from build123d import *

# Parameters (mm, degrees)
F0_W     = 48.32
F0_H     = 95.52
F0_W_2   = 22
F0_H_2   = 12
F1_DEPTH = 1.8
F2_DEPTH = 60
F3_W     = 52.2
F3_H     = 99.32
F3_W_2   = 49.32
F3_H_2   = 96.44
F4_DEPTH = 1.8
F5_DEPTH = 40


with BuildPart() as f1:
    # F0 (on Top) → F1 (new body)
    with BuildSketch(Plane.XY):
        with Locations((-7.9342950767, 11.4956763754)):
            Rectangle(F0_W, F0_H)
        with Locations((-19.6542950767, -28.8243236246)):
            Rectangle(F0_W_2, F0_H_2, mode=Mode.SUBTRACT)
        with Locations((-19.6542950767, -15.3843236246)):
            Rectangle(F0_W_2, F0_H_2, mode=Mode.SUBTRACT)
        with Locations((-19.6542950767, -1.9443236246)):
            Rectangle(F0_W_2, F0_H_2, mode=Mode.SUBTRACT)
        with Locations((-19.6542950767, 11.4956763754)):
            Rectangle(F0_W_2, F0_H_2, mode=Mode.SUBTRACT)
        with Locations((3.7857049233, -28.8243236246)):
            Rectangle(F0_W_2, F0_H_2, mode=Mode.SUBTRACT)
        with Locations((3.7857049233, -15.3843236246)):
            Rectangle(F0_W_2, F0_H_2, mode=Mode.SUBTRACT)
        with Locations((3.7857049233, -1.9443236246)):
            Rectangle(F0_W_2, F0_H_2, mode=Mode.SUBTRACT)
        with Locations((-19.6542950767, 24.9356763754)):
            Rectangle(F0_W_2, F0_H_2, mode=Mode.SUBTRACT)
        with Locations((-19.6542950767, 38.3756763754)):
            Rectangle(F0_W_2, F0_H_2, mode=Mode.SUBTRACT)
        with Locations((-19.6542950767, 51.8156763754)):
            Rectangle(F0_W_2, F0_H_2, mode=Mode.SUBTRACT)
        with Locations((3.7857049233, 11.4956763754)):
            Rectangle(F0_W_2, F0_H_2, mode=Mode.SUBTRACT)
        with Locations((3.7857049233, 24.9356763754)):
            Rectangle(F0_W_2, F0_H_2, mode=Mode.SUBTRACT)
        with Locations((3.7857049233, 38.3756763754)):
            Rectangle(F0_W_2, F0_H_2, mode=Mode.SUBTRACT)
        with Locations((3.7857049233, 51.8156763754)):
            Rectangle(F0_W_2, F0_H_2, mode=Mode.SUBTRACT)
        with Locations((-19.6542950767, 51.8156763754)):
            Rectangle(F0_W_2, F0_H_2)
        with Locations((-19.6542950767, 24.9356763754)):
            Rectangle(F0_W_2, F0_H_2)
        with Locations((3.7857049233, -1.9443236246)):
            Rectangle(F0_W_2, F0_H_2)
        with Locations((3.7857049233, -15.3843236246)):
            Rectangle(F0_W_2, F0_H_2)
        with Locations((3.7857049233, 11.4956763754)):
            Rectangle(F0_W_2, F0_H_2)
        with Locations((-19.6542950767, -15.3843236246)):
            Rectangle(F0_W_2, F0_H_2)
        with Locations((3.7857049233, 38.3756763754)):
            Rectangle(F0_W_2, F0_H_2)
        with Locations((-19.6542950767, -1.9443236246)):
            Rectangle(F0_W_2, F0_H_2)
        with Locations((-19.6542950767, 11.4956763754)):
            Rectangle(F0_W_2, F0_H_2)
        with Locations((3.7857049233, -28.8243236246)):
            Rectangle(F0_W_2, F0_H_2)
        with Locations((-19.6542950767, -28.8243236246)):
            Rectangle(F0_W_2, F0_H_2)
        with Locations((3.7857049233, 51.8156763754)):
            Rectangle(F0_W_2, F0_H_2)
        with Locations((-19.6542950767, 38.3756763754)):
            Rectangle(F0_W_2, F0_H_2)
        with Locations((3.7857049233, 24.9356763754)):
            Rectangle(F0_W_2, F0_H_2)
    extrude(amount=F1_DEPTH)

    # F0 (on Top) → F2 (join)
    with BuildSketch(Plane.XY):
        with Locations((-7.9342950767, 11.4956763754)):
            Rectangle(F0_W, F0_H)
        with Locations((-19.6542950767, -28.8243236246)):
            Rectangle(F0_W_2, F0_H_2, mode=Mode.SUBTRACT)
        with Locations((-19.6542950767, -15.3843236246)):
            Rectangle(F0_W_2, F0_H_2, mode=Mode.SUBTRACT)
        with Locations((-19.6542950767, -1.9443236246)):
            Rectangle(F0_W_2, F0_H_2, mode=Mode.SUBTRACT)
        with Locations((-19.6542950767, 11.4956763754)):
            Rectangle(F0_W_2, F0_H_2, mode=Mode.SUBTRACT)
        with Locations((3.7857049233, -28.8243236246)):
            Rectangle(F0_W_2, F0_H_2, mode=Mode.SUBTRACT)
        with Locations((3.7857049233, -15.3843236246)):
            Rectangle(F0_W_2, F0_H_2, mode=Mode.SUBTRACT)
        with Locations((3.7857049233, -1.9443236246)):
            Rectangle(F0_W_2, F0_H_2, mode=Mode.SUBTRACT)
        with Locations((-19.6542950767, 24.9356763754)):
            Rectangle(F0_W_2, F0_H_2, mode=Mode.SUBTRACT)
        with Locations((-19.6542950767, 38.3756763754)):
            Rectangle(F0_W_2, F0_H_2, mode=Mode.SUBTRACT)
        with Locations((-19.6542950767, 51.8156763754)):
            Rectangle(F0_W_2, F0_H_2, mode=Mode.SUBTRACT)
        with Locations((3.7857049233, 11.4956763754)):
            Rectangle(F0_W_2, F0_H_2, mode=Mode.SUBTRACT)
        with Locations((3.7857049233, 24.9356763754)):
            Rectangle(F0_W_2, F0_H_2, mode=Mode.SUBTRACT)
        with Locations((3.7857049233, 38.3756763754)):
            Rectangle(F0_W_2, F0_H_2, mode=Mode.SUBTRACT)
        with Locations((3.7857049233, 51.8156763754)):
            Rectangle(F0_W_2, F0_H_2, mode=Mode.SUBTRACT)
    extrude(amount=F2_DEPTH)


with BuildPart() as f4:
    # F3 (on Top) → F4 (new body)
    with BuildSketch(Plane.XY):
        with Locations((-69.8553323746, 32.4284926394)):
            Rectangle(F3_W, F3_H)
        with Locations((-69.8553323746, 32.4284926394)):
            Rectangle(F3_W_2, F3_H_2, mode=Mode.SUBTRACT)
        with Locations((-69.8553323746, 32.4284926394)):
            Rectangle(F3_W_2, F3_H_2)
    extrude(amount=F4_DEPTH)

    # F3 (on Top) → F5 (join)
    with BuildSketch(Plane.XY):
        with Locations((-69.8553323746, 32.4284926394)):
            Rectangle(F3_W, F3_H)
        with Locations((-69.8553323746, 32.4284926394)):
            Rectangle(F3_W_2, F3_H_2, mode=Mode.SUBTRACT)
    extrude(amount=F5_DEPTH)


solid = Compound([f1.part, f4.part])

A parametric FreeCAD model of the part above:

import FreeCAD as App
import Part
import Sketcher
Q = App.Units.Quantity


def add_polygon(sketch, points):
    """Adds a closed chain of lines whose ends are joined by coincident constraints."""
    first, n = sketch.GeometryCount, len(points)
    for a, b in zip(points, points[1:] + points[:1]):
        sketch.addGeometry(Part.LineSegment(App.Vector(*a, 0), App.Vector(*b, 0)), False)
    for i in range(n):
        sketch.addConstraint(Sketcher.Constraint("Coincident", first + i, 2, first + (i + 1) % n, 1))

doc = App.newDocument("Part")
body = doc.addObject("PartDesign::Body", "Body")

# Sketch on XY plane
sketch1 = body.newObject("Sketcher::SketchObject", "Sketch")
sketch1.AttachmentSupport = (doc.getObject("XY_Plane"), [""])
sketch1.MapMode = "FlatFace"
add_polygon(sketch1, [(-32, 59), (-32, -36), (16, -36), (16, 59)])  # lines 0-3
sketch1.addConstraint(Sketcher.Constraint("Vertical", 0))
sketch1.addConstraint(Sketcher.Constraint("Horizontal", 1))
sketch1.addConstraint(Sketcher.Constraint("Vertical", 2))
sketch1.addConstraint(Sketcher.Constraint("Horizontal", 3))
sketch1.addConstraint(Sketcher.Constraint("DistanceX", 1, 1, 1, 2, Q("48.32 mm")))
sketch1.addConstraint(Sketcher.Constraint("DistanceY", 0, 2, 0, 1, Q("95.52 mm")))
sketch1.addConstraint(Sketcher.Constraint("DistanceX", 0, 2, -1, 1, Q("32.094295 mm")))
sketch1.addConstraint(Sketcher.Constraint("DistanceY", 0, 2, -1, 1, Q("36.264324 mm")))
pad1 = body.newObject("PartDesign::Pad", "Pad")
pad1.Profile = sketch1
pad1.Length = 1.8

# Sketch on XY plane
sketch2 = body.newObject("Sketcher::SketchObject", "Sketch001")
sketch2.AttachmentSupport = (doc.getObject("XY_Plane"), [""])
sketch2.MapMode = "FlatFace"
add_polygon(sketch2, [(-32, 59), (-32, -36), (16, -36), (16, 59)])  # lines 0-3
add_polygon(sketch2, [(-9, -35), (-31, -35), (-31, -23), (-9, -23)])  # lines 4-7
add_polygon(sketch2, [(-9, -21), (-31, -21), (-31, -9), (-9, -9)])  # lines 8-11
add_polygon(sketch2, [(-9, -8), (-31, -8), (-31, 4), (-9, 4)])  # lines 12-15
add_polygon(sketch2, [(15, -35), (-7, -35), (-7, -23), (15, -23)])  # lines 16-19
add_polygon(sketch2, [(15, -21), (-7, -21), (-7, -9), (15, -9)])  # lines 20-23
add_polygon(sketch2, [(15, -8), (-7, -8), (-7, 4), (15, 4)])  # lines 24-27
add_polygon(sketch2, [(-9, 5), (-31, 5), (-31, 17), (-9, 17)])  # lines 28-31
add_polygon(sketch2, [(-9, 19), (-31, 19), (-31, 31), (-9, 31)])  # lines 32-35
add_polygon(sketch2, [(-9, 32), (-31, 32), (-31, 44), (-9, 44)])  # lines 36-39
add_polygon(sketch2, [(-9, 46), (-31, 46), (-31, 58), (-9, 58)])  # lines 40-43
add_polygon(sketch2, [(15, 5), (-7, 5), (-7, 17), (15, 17)])  # lines 44-47
add_polygon(sketch2, [(15, 19), (-7, 19), (-7, 31), (15, 31)])  # lines 48-51
add_polygon(sketch2, [(15, 32), (-7, 32), (-7, 44), (15, 44)])  # lines 52-55
add_polygon(sketch2, [(15, 46), (-7, 46), (-7, 58), (15, 58)])  # lines 56-59
sketch2.addConstraint(Sketcher.Constraint("Vertical", 0))
sketch2.addConstraint(Sketcher.Constraint("Horizontal", 1))
sketch2.addConstraint(Sketcher.Constraint("Vertical", 2))
sketch2.addConstraint(Sketcher.Constraint("Horizontal", 3))
sketch2.addConstraint(Sketcher.Constraint("Horizontal", 4))
sketch2.addConstraint(Sketcher.Constraint("Vertical", 5))
sketch2.addConstraint(Sketcher.Constraint("Horizontal", 6))
sketch2.addConstraint(Sketcher.Constraint("Vertical", 7))
sketch2.addConstraint(Sketcher.Constraint("Horizontal", 8))
sketch2.addConstraint(Sketcher.Constraint("Vertical", 9))
sketch2.addConstraint(Sketcher.Constraint("Horizontal", 10))
sketch2.addConstraint(Sketcher.Constraint("Vertical", 11))
sketch2.addConstraint(Sketcher.Constraint("Horizontal", 12))
sketch2.addConstraint(Sketcher.Constraint("Vertical", 13))
sketch2.addConstraint(Sketcher.Constraint("Horizontal", 14))
sketch2.addConstraint(Sketcher.Constraint("Vertical", 15))
sketch2.addConstraint(Sketcher.Constraint("Horizontal", 16))
sketch2.addConstraint(Sketcher.Constraint("Vertical", 17))
sketch2.addConstraint(Sketcher.Constraint("Horizontal", 18))
sketch2.addConstraint(Sketcher.Constraint("Vertical", 19))
sketch2.addConstraint(Sketcher.Constraint("Horizontal", 20))
sketch2.addConstraint(Sketcher.Constraint("Vertical", 21))
sketch2.addConstraint(Sketcher.Constraint("Horizontal", 22))
sketch2.addConstraint(Sketcher.Constraint("Vertical", 23))
sketch2.addConstraint(Sketcher.Constraint("Horizontal", 24))
sketch2.addConstraint(Sketcher.Constraint("Vertical", 25))
sketch2.addConstraint(Sketcher.Constraint("Horizontal", 26))
sketch2.addConstraint(Sketcher.Constraint("Vertical", 27))
sketch2.addConstraint(Sketcher.Constraint("Horizontal", 28))
sketch2.addConstraint(Sketcher.Constraint("Vertical", 29))
sketch2.addConstraint(Sketcher.Constraint("Horizontal", 30))
sketch2.addConstraint(Sketcher.Constraint("Vertical", 31))
sketch2.addConstraint(Sketcher.Constraint("Horizontal", 32))
sketch2.addConstraint(Sketcher.Constraint("Vertical", 33))
sketch2.addConstraint(Sketcher.Constraint("Horizontal", 34))
sketch2.addConstraint(Sketcher.Constraint("Vertical", 35))
sketch2.addConstraint(Sketcher.Constraint("Horizontal", 36))
sketch2.addConstraint(Sketcher.Constraint("Vertical", 37))
sketch2.addConstraint(Sketcher.Constraint("Horizontal", 38))
sketch2.addConstraint(Sketcher.Constraint("Vertical", 39))
sketch2.addConstraint(Sketcher.Constraint("Horizontal", 40))
sketch2.addConstraint(Sketcher.Constraint("Vertical", 41))
sketch2.addConstraint(Sketcher.Constraint("Horizontal", 42))
sketch2.addConstraint(Sketcher.Constraint("Vertical", 43))
sketch2.addConstraint(Sketcher.Constraint("Horizontal", 44))
sketch2.addConstraint(Sketcher.Constraint("Vertical", 45))
sketch2.addConstraint(Sketcher.Constraint("Horizontal", 46))
sketch2.addConstraint(Sketcher.Constraint("Vertical", 47))
sketch2.addConstraint(Sketcher.Constraint("Horizontal", 48))
sketch2.addConstraint(Sketcher.Constraint("Vertical", 49))
sketch2.addConstraint(Sketcher.Constraint("Horizontal", 50))
sketch2.addConstraint(Sketcher.Constraint("Vertical", 51))
sketch2.addConstraint(Sketcher.Constraint("Horizontal", 52))
sketch2.addConstraint(Sketcher.Constraint("Vertical", 53))
sketch2.addConstraint(Sketcher.Constraint("Horizontal", 54))
sketch2.addConstraint(Sketcher.Constraint("Vertical", 55))
sketch2.addConstraint(Sketcher.Constraint("Horizontal", 56))
sketch2.addConstraint(Sketcher.Constraint("Vertical", 57))
sketch2.addConstraint(Sketcher.Constraint("Horizontal", 58))
sketch2.addConstraint(Sketcher.Constraint("Vertical", 59))
sketch2.addConstraint(Sketcher.Constraint("Horizontal", 7, 2, 16, 2))
sketch2.addConstraint(Sketcher.Constraint("Horizontal", 6, 2, 17, 2))
sketch2.addConstraint(Sketcher.Constraint("Horizontal", 11, 2, 20, 2))
sketch2.addConstraint(Sketcher.Constraint("Horizontal", 10, 2, 21, 2))
sketch2.addConstraint(Sketcher.Constraint("Horizontal", 15, 2, 24, 2))
sketch2.addConstraint(Sketcher.Constraint("Horizontal", 14, 2, 25, 2))
sketch2.addConstraint(Sketcher.Constraint("Horizontal", 31, 2, 44, 2))
sketch2.addConstraint(Sketcher.Constraint("Horizontal", 30, 2, 45, 2))
sketch2.addConstraint(Sketcher.Constraint("Horizontal", 35, 2, 48, 2))
sketch2.addConstraint(Sketcher.Constraint("Horizontal", 34, 2, 49, 2))
sketch2.addConstraint(Sketcher.Constraint("Horizontal", 39, 2, 52, 2))
sketch2.addConstraint(Sketcher.Constraint("Horizontal", 38, 2, 53, 2))
sketch2.addConstraint(Sketcher.Constraint("Horizontal", 43, 2, 56, 2))
sketch2.addConstraint(Sketcher.Constraint("Horizontal", 42, 2, 57, 2))
sketch2.addConstraint(Sketcher.Constraint("Vertical", 5, 2, 8, 2))
sketch2.addConstraint(Sketcher.Constraint("Vertical", 7, 2, 10, 2))
sketch2.addConstraint(Sketcher.Constraint("Vertical", 9, 2, 12, 2))
sketch2.addConstraint(Sketcher.Constraint("Vertical", 11, 2, 14, 2))
sketch2.addConstraint(Sketcher.Constraint("Vertical", 17, 2, 20, 2))
sketch2.addConstraint(Sketcher.Constraint("Vertical", 19, 2, 22, 2))
sketch2.addConstraint(Sketcher.Constraint("Vertical", 21, 2, 24, 2))
sketch2.addConstraint(Sketcher.Constraint("Vertical", 23, 2, 26, 2))
sketch2.addConstraint(Sketcher.Constraint("Vertical", 13, 2, 28, 2))
sketch2.addConstraint(Sketcher.Constraint("Vertical", 15, 2, 30, 2))
sketch2.addConstraint(Sketcher.Constraint("Vertical", 29, 2, 32, 2))
sketch2.addConstraint(Sketcher.Constraint("Vertical", 31, 2, 34, 2))
sketch2.addConstraint(Sketcher.Constraint("Vertical", 33, 2, 36, 2))
sketch2.addConstraint(Sketcher.Constraint("Vertical", 35, 2, 38, 2))
sketch2.addConstraint(Sketcher.Constraint("Vertical", 37, 2, 40, 2))
sketch2.addConstraint(Sketcher.Constraint("Vertical", 39, 2, 42, 2))
sketch2.addConstraint(Sketcher.Constraint("Vertical", 25, 2, 44, 2))
sketch2.addConstraint(Sketcher.Constraint("Vertical", 27, 2, 46, 2))
sketch2.addConstraint(Sketcher.Constraint("Vertical", 45, 2, 48, 2))
sketch2.addConstraint(Sketcher.Constraint("Vertical", 47, 2, 50, 2))
sketch2.addConstraint(Sketcher.Constraint("Vertical", 49, 2, 52, 2))
sketch2.addConstraint(Sketcher.Constraint("Vertical", 51, 2, 54, 2))
sketch2.addConstraint(Sketcher.Constraint("Vertical", 53, 2, 56, 2))
sketch2.addConstraint(Sketcher.Constraint("Vertical", 55, 2, 58, 2))
sketch2.addConstraint(Sketcher.Constraint("Equal", 14, 16))
sketch2.addConstraint(Sketcher.Constraint("Equal", 7, 9))
sketch2.addConstraint(Sketcher.Constraint("Equal", 11, 13))
sketch2.addConstraint(Sketcher.Constraint("Equal", 27, 29))
sketch2.addConstraint(Sketcher.Constraint("Equal", 31, 33))
sketch2.addConstraint(Sketcher.Constraint("Equal", 35, 37))
sketch2.addConstraint(Sketcher.Constraint("Equal", 39, 41))
sketch2.addConstraint(Sketcher.Constraint("DistanceX", 4, 2, 4, 1, Q("22 mm")))
sketch2.addConstraint(Sketcher.Constraint("DistanceY", 5, 1, 5, 2, Q("12 mm")))
sketch2.addConstraint(Sketcher.Constraint("DistanceX", 1, 1, 1, 2, Q("48.32 mm")))
sketch2.addConstraint(Sketcher.Constraint("DistanceY", 0, 2, 0, 1, Q("95.52 mm")))
sketch2.addConstraint(Sketcher.Constraint("DistanceX", 0, 2, 4, 2, Q("1.44 mm")))
sketch2.addConstraint(Sketcher.Constraint("DistanceY", 0, 2, 4, 2, Q("1.44 mm")))
sketch2.addConstraint(Sketcher.Constraint("DistanceY", 5, 2, 8, 2, Q("1.44 mm")))
sketch2.addConstraint(Sketcher.Constraint("DistanceY", 9, 2, 12, 2, Q("1.44 mm")))
sketch2.addConstraint(Sketcher.Constraint("DistanceX", 7, 2, 16, 2, Q("1.44 mm")))
sketch2.addConstraint(Sketcher.Constraint("DistanceY", 13, 2, 28, 2, Q("1.44 mm")))
sketch2.addConstraint(Sketcher.Constraint("DistanceY", 29, 2, 32, 2, Q("1.44 mm")))
sketch2.addConstraint(Sketcher.Constraint("DistanceY", 33, 2, 36, 2, Q("1.44 mm")))
sketch2.addConstraint(Sketcher.Constraint("DistanceY", 37, 2, 40, 2, Q("1.44 mm")))
sketch2.addConstraint(Sketcher.Constraint("DistanceX", 0, 2, -1, 1, Q("32.094295 mm")))
sketch2.addConstraint(Sketcher.Constraint("DistanceY", 0, 2, -1, 1, Q("36.264324 mm")))
pad2 = body.newObject("PartDesign::Pad", "Pad001")
pad2.Profile = sketch2
pad2.Length = 60
body2 = doc.addObject("PartDesign::Body", "Body001")

# Sketch on XY plane
sketch3 = body2.newObject("Sketcher::SketchObject", "Sketch002")
sketch3.AttachmentSupport = (doc.getObject("XY_Plane001"), [""])
sketch3.MapMode = "FlatFace"
add_polygon(sketch3, [(-96, 82), (-96, -17), (-44, -17), (-44, 82)])  # lines 0-3
sketch3.addConstraint(Sketcher.Constraint("Vertical", 0))
sketch3.addConstraint(Sketcher.Constraint("Horizontal", 1))
sketch3.addConstraint(Sketcher.Constraint("Vertical", 2))
sketch3.addConstraint(Sketcher.Constraint("Horizontal", 3))
sketch3.addConstraint(Sketcher.Constraint("DistanceX", 1, 1, 1, 2, Q("52.2 mm")))
sketch3.addConstraint(Sketcher.Constraint("DistanceY", 0, 2, 0, 1, Q("99.32 mm")))
sketch3.addConstraint(Sketcher.Constraint("DistanceX", 0, 2, -1, 1, Q("95.955332 mm")))
sketch3.addConstraint(Sketcher.Constraint("DistanceY", 0, 2, -1, 1, Q("17.231507 mm")))
pad3 = body2.newObject("PartDesign::Pad", "Pad002")
pad3.Profile = sketch3
pad3.Length = 1.8

# Sketch on XY plane
sketch4 = body2.newObject("Sketcher::SketchObject", "Sketch003")
sketch4.AttachmentSupport = (doc.getObject("XY_Plane001"), [""])
sketch4.MapMode = "FlatFace"
add_polygon(sketch4, [(-96, 82), (-96, -17), (-44, -17), (-44, 82)])  # lines 0-3
add_polygon(sketch4, [(-45, -16), (-95, -16), (-95, 81), (-45, 81)])  # lines 4-7
sketch4.addConstraint(Sketcher.Constraint("Vertical", 0))
sketch4.addConstraint(Sketcher.Constraint("Horizontal", 1))
sketch4.addConstraint(Sketcher.Constraint("Vertical", 2))
sketch4.addConstraint(Sketcher.Constraint("Horizontal", 3))
sketch4.addConstraint(Sketcher.Constraint("Horizontal", 4))
sketch4.addConstraint(Sketcher.Constraint("Vertical", 5))
sketch4.addConstraint(Sketcher.Constraint("Horizontal", 6))
sketch4.addConstraint(Sketcher.Constraint("Vertical", 7))
sketch4.addConstraint(Sketcher.Constraint("DistanceX", 1, 1, 1, 2, Q("52.2 mm")))
sketch4.addConstraint(Sketcher.Constraint("DistanceX", 4, 2, 4, 1, Q("49.32 mm")))
sketch4.addConstraint(Sketcher.Constraint("DistanceY", 0, 2, 0, 1, Q("99.32 mm")))
sketch4.addConstraint(Sketcher.Constraint("DistanceY", 5, 1, 5, 2, Q("96.44 mm")))
sketch4.addConstraint(Sketcher.Constraint("DistanceX", 0, 2, 4, 2, Q("1.44 mm")))
sketch4.addConstraint(Sketcher.Constraint("DistanceY", 0, 2, 4, 2, Q("1.44 mm")))
sketch4.addConstraint(Sketcher.Constraint("DistanceX", 0, 2, -1, 1, Q("95.955332 mm")))
sketch4.addConstraint(Sketcher.Constraint("DistanceY", 0, 2, -1, 1, Q("17.231507 mm")))
pad4 = body2.newObject("PartDesign::Pad", "Pad003")
pad4.Profile = sketch4
pad4.Length = 40

doc.recompute()
